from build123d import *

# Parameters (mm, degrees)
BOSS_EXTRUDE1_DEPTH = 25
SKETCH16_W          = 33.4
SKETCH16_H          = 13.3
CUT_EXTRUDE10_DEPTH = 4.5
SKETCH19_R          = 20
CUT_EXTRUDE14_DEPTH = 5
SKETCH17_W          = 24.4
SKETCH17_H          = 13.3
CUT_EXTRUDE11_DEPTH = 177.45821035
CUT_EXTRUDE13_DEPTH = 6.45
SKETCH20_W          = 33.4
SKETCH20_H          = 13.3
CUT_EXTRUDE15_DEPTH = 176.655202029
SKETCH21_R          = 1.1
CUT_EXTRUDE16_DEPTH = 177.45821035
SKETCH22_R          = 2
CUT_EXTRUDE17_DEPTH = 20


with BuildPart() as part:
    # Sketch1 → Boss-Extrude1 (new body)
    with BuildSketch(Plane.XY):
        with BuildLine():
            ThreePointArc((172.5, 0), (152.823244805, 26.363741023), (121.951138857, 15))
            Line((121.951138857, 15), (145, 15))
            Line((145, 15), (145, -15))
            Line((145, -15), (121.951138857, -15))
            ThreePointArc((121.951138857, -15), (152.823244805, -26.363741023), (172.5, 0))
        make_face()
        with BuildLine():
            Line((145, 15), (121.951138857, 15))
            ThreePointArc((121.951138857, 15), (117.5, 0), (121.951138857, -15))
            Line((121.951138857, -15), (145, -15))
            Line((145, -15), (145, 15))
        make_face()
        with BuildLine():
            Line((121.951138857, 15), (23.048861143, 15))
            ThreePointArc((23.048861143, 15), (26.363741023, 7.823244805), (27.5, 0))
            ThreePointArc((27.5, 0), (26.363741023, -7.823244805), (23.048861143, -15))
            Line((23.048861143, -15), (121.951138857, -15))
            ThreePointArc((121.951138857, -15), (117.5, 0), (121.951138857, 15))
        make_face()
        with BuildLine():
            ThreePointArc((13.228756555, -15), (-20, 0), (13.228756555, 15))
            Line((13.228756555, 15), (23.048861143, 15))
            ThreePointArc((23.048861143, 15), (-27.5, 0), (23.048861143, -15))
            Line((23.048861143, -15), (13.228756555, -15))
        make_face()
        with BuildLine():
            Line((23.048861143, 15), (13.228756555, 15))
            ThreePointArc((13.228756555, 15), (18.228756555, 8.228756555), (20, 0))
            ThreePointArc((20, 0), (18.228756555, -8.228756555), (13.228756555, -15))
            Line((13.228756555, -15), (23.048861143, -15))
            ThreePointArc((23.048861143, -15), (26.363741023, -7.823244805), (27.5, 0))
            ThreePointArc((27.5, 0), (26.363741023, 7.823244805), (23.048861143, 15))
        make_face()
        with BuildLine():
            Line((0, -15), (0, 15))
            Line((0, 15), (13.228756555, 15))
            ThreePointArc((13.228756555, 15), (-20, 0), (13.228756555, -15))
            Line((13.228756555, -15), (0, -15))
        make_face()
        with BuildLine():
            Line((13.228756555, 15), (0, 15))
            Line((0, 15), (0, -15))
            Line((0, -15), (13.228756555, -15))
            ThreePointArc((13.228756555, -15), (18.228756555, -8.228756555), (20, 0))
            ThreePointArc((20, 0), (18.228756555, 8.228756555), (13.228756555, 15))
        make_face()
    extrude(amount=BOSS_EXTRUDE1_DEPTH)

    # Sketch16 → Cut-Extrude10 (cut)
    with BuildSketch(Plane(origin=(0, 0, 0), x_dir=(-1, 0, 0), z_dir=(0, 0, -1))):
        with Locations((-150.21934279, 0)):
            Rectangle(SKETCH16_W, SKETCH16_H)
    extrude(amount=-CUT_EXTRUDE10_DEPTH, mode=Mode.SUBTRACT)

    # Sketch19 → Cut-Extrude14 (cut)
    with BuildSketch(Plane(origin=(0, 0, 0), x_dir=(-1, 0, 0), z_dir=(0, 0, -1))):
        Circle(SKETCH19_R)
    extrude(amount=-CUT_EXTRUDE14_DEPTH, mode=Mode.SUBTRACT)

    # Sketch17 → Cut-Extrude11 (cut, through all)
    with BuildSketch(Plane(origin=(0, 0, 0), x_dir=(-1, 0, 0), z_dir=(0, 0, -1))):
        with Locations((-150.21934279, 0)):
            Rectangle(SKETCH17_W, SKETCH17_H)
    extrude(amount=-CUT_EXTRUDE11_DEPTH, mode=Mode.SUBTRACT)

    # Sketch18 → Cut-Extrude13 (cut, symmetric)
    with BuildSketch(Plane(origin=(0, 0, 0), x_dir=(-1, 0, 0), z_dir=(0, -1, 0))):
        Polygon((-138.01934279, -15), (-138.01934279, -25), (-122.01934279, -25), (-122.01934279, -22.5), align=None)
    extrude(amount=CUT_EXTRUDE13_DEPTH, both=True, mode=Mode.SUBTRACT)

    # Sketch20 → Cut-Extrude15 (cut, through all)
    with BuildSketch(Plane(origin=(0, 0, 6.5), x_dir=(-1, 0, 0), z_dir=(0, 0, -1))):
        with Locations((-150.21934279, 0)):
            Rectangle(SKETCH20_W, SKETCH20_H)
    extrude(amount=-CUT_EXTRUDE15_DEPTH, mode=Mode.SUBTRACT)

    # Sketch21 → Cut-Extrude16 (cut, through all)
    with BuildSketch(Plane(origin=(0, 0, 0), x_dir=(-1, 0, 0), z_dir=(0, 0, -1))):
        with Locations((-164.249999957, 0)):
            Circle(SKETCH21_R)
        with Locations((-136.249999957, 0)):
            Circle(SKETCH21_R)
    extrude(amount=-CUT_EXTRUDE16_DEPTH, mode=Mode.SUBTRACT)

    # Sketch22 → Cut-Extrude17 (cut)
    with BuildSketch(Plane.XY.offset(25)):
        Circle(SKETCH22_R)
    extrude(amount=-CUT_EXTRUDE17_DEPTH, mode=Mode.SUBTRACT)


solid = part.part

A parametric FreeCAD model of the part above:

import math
import FreeCAD as App
import Part
import Sketcher

V = App.Vector
Q = App.Units.Quantity


def add_polygon(sketch, points):
    """Adds a closed chain of lines whose ends are joined by coincident constraints."""
    first, n = sketch.GeometryCount, len(points)
    for a, b in zip(points, points[1:] + points[:1]):
        sketch.addGeometry(Part.LineSegment(App.Vector(*a, 0), App.Vector(*b, 0)), False)
    for i in range(n):
        sketch.addConstraint(Sketcher.Constraint("Coincident", first + i, 2, first + (i + 1) % n, 1))

doc = App.newDocument("Part")
params = doc.addObject("Spreadsheet::Sheet", "Params")
for row, (alias, value) in enumerate([
    ("sketch1_radius", "27.5 mm"),
    ("pad1_length", "25 mm"),
    ("sketch2_width", "33.4 mm"),
    ("sketch2_height", "13.3 mm"),
    ("pocket1_length", "4.5 mm"),
    ("sketch3_diameter", "40 mm"),
    ("pocket2_length", "5 mm"),
    ("sketch4_width", "24.4 mm"),
    ("sketch4_height", "13.3 mm"),
    ("sketch5_width", "16 mm"),
    ("sketch5_height", "10 mm"),
    ("sketch5_height2", "2.5 mm"),
    ("pocket4_length", "12.9 mm"),
    ("sketch6_width", "33.4 mm"),
    ("sketch6_height", "13.3 mm"),
    ("sketch7_diameter", "2.2 mm"),
    ("sketch8_diameter", "4 mm"),
    ("pocket7_length", "20 mm"),
], start=1):
    params.set(f"A{row}", alias)
    params.set(f"B{row}", "=" + value)
    params.setAlias(f"B{row}", alias)

body = doc.addObject("PartDesign::Body", "Body")

sketch1 = body.newObject("Sketcher::SketchObject", "Sketch")
sketch1.AttachmentSupport = (doc.getObject("XY_Plane"), [""])
sketch1.MapMode = "FlatFace"
sketch1.addGeometry([
    Part.LineSegment(V(23, -15, 0), V(122, -15, 0)),
    Part.ArcOfCircle(Part.Circle(V(145, 0, 0), V(0, 0, 1), 28), math.radians(-147), math.radians(0)),
    Part.ArcOfCircle(Part.Circle(V(145, 0, 0), V(0, 0, 1), 28), math.radians(0), math.radians(147)),
    Part.LineSegment(V(122, 15, 0), V(23, 15, 0)),
    Part.ArcOfCircle(Part.Circle(V(0, 0, 0), V(0, 0, 1), 28), math.radians(33), math.radians(327)),
], False)
sketch1.addConstraint([
    Sketcher.Constraint("Coincident", 0, 2, 1, 1),
    Sketcher.Constraint("Tangent", 1, 2, 2, 1),
    Sketcher.Constraint("Coincident", 2, 2, 3, 1),
    Sketcher.Constraint("Coincident", 3, 2, 4, 1),
    Sketcher.Constraint("Coincident", 4, 2, 0, 1),
    Sketcher.Constraint("Horizontal", 0),
    Sketcher.Constraint("Horizontal", 3),
    Sketcher.Constraint("Coincident", 4, 3, -1, 1),
    Sketcher.Constraint("Equal", 1, 2),
    Sketcher.Constraint("Equal", 2, 4),
    Sketcher.Constraint("Symmetric", 0, 2, 2, 2, -1),
    Sketcher.Constraint("PointOnObject", 1, 2, -1),
    Sketcher.Constraint("Radius", 1, Q("27.5 mm")),
    Sketcher.Constraint("DistanceX", -1, 1, 1, 3, Q("145 mm")),
    Sketcher.Constraint("DistanceY", 0, 2, -1, 1, Q("15 mm")),
])
sketch1.setExpression("Constraints[12]", "Params.sketch1_radius")
pad1 = body.newObject("PartDesign::Pad", "Pad")
pad1.Profile = sketch1
pad1.setExpression("Length", "Params.pad1_length")

sketch2 = body.newObject("Sketcher::SketchObject", "Sketch001")
sketch2.AttachmentSupport = (doc.getObject("XY_Plane"), [""])
sketch2.MapMode = "FlatFace"
add_polygon(sketch2, [(167, 7), (167, -7), (134, -7), (134, 7)])
sketch2.addConstraint([
    Sketcher.Constraint("Vertical", 0),
    Sketcher.Constraint("Horizontal", 1),
    Sketcher.Constraint("Vertical", 2),
    Sketcher.Constraint("Horizontal", 3),
    Sketcher.Constraint("DistanceX", 1, 2, 1, 1, Q("33.4 mm")),
    Sketcher.Constraint("DistanceY", 0, 2, 0, 1, Q("13.3 mm")),
    Sketcher.Constraint("DistanceY", 0, 2, -1, 1, Q("6.65 mm")),
    Sketcher.Constraint("DistanceX", -1, 1, 0, 2, Q("166.919343 mm")),
])
sketch2.setExpression("Constraints[8]", "Params.sketch2_width")
sketch2.setExpression("Constraints[9]", "Params.sketch2_height")
pocket1 = body.newObject("PartDesign::Pocket", "Pocket")
pocket1.Profile = sketch2
pocket1.setExpression("Length", "Params.pocket1_length")
pocket1.Reversed = True

sketch3 = body.newObject("Sketcher::SketchObject", "Sketch002")
sketch3.AttachmentSupport = (doc.getObject("XY_Plane"), [""])
sketch3.MapMode = "FlatFace"
sketch3.addGeometry(Part.Circle(V(0, 0, 0), V(0, 0, 1), 20), False)
sketch3.addConstraint([
    Sketcher.Constraint("Coincident", 0, 3, -1, 1),
    Sketcher.Constraint("Diameter", 0, Q("40 mm")),
])
sketch3.setExpression("Constraints[1]", "Params.sketch3_diameter")
pocket2 = body.newObject("PartDesign::Pocket", "Pocket001")
pocket2.Profile = sketch3
pocket2.setExpression("Length", "Params.pocket2_length")
pocket2.Reversed = True

sketch4 = body.newObject("Sketcher::SketchObject", "Sketch003")
sketch4.AttachmentSupport = (doc.getObject("XY_Plane"), [""])
sketch4.MapMode = "FlatFace"
add_polygon(sketch4, [(162, 7), (162, -7), (138, -7), (138, 7)])
sketch4.addConstraint([
    Sketcher.Constraint("Vertical", 0),
    Sketcher.Constraint("Horizontal", 1),
    Sketcher.Constraint("Vertical", 2),
    Sketcher.Constraint("Horizontal", 3),
    Sketcher.Constraint("DistanceX", 1, 2, 1, 1, Q("24.4 mm")),
    Sketcher.Constraint("DistanceY", 0, 2, 0, 1, Q("13.3 mm")),
    Sketcher.Constraint("DistanceY", 0, 2, -1, 1, Q("6.65 mm")),
    Sketcher.Constraint("DistanceX", -1, 1, 0, 2, Q("162.419343 mm")),
])
sketch4.setExpression("Constraints[8]", "Params.sketch4_width")
sketch4.setExpression("Constraints[9]", "Params.sketch4_height")
pocket3 = body.newObject("PartDesign::Pocket", "Pocket002")
pocket3.Profile = sketch4
pocket3.Type = "ThroughAll"
pocket3.Reversed = True

sketch5 = body.newObject("Sketcher::SketchObject", "Sketch004")
sketch5.AttachmentSupport = (doc.getObject("XZ_Plane"), [""])
sketch5.MapMode = "FlatFace"
add_polygon(sketch5, [(138, 15), (138, 25), (122, 25), (122, 22.5)])
sketch5.addConstraint([
    Sketcher.Constraint("Vertical", 0),
    Sketcher.Constraint("Horizontal", 1),
    Sketcher.Constraint("Vertical", 2),
    Sketcher.Constraint("DistanceX", 1, 2, 1, 1, Q("16 mm")),
    Sketcher.Constraint("DistanceY", 0, 1, 0, 2, Q("10 mm")),
    Sketcher.Constraint("DistanceY", 2, 2, 2, 1, Q("2.5 mm")),
    Sketcher.Constraint("DistanceY", -1, 1, 0, 2, Q("25 mm")),
    Sketcher.Constraint("DistanceX", -1, 1, 0, 2, Q("138.019343 mm")),
])
sketch5.setExpression("Constraints[7]", "Params.sketch5_width")
sketch5.setExpression("Constraints[8]", "Params.sketch5_height")
sketch5.setExpression("Constraints[9]", "Params.sketch5_height2")
pocket4 = body.newObject("PartDesign::Pocket", "Pocket003")
pocket4.Profile = sketch5
pocket4.setExpression("Length", "Params.pocket4_length")
pocket4.Midplane = True

sketch6 = body.newObject("Sketcher::SketchObject", "Sketch005")
sketch6.AttachmentSupport = (doc.getObject("XY_Plane"), [""])
sketch6.MapMode = "FlatFace"
sketch6.AttachmentOffset = App.Placement(V(0, 0, 6.5), App.Rotation())
add_polygon(sketch6, [(167, 7), (167, -7), (134, -7), (134, 7)])
sketch6.addConstraint([
    Sketcher.Constraint("Vertical", 0),
    Sketcher.Constraint("Horizontal", 1),
    Sketcher.Constraint("Vertical", 2),
    Sketcher.Constraint("Horizontal", 3),
    Sketcher.Constraint("DistanceX", 1, 2, 1, 1, Q("33.4 mm")),
    Sketcher.Constraint("DistanceY", 0, 2, 0, 1, Q("13.3 mm")),
    Sketcher.Constraint("DistanceY", 0, 2, -1, 1, Q("6.65 mm")),
    Sketcher.Constraint("DistanceX", -1, 1, 0, 2, Q("166.919343 mm")),
])
sketch6.setExpression("Constraints[8]", "Params.sketch6_width")
sketch6.setExpression("Constraints[9]", "Params.sketch6_height")
pocket5 = body.newObject("PartDesign::Pocket", "Pocket004")
pocket5.Profile = sketch6
pocket5.Type = "ThroughAll"
pocket5.Reversed = True

sketch7 = body.newObject("Sketcher::SketchObject", "Sketch006")
sketch7.AttachmentSupport = (doc.getObject("XY_Plane"), [""])
sketch7.MapMode = "FlatFace"
sketch7.addGeometry([
    Part.Circle(V(164.2, 0, 0), V(0, 0, 1), 1.1),
    Part.Circle(V(136.2, 0, 0), V(0, 0, 1), 1.1),
], False)
sketch7.addConstraint([
    Sketcher.Constraint("Equal", 0, 1),
    Sketcher.Constraint("PointOnObject", 0, 3, -1),
    Sketcher.Constraint("PointOnObject", 1, 3, -1),
    Sketcher.Constraint("Diameter", 0, Q("2.2 mm")),
    Sketcher.Constraint("DistanceX", 1, 3, 0, 3, Q("28 mm")),
    Sketcher.Constraint("DistanceX", -1, 1, 0, 3, Q("164.25 mm")),
])
sketch7.setExpression("Constraints[3]", "Params.sketch7_diameter")
pocket6 = body.newObject("PartDesign::Pocket", "Pocket005")
pocket6.Profile = sketch7
pocket6.Type = "ThroughAll"
pocket6.Reversed = True

sketch8 = body.newObject("Sketcher::SketchObject", "Sketch007")
sketch8.AttachmentSupport = (doc.getObject("XY_Plane"), [""])
sketch8.MapMode = "FlatFace"
sketch8.AttachmentOffset = App.Placement(V(0, 0, 25), App.Rotation())
sketch8.addGeometry(Part.Circle(V(0, 0, 0), V(0, 0, 1), 2), False)
sketch8.addConstraint([
    Sketcher.Constraint("Coincident", 0, 3, -1, 1),
    Sketcher.Constraint("Diameter", 0, Q("4 mm")),
])
sketch8.setExpression("Constraints[1]", "Params.sketch8_diameter")
pocket7 = body.newObject("PartDesign::Pocket", "Pocket006")
pocket7.Profile = sketch8
pocket7.setExpression("Length", "Params.pocket7_length")

doc.recompute()
